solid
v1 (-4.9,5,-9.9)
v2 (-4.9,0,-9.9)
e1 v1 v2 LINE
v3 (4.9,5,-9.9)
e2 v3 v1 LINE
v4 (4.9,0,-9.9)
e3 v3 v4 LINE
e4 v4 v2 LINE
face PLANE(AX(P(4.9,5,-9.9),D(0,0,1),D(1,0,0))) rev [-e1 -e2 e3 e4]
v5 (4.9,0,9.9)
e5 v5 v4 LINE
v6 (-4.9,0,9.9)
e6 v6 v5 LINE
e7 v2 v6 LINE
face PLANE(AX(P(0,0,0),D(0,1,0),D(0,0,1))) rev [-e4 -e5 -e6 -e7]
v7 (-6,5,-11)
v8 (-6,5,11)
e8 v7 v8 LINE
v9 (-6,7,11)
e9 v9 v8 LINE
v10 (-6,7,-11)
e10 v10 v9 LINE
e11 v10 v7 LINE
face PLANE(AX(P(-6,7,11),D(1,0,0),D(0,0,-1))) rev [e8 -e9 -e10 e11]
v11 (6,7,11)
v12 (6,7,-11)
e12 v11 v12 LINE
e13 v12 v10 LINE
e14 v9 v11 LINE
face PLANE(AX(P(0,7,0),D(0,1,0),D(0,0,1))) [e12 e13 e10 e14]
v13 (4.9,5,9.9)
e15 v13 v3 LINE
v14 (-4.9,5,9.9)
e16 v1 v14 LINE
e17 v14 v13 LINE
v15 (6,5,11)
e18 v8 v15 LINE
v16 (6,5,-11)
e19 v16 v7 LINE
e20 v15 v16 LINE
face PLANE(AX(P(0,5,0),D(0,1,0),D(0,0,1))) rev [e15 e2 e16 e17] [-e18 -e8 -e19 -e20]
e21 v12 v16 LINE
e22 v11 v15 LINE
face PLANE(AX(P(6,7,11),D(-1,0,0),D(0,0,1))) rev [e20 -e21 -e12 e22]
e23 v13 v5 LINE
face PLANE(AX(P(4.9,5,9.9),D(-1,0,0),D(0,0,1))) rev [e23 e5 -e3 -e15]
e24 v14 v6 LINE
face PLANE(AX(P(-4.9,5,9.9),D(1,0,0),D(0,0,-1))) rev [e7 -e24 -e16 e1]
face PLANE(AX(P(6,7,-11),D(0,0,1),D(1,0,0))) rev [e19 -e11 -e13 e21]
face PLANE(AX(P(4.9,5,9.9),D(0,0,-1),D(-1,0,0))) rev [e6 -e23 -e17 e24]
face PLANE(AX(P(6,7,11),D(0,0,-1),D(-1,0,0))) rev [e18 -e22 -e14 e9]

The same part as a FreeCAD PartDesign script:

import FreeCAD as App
import Part
import Sketcher
from FreeCAD import Vector
Q = App.Units.Quantity

doc = App.newDocument("Part")
body = doc.addObject("PartDesign::Body", "Body")

sketch1 = body.newObject("Sketcher::SketchObject", "Sketch")
sketch1.AttachmentSupport = (doc.getObject("XZ_Plane"), [""])
sketch1.MapMode = "FlatFace"
sketch1.addGeometry(Part.LineSegment(Vector(-5, -10, 0), Vector(-5, 10, 0)), False)
sketch1.addGeometry(Part.LineSegment(Vector(-5, 10, 0), Vector(5, 10, 0)), False)
sketch1.addGeometry(Part.LineSegment(Vector(5, 10, 0), Vector(5, -10, 0)), False)
sketch1.addGeometry(Part.LineSegment(Vector(5, -10, 0), Vector(-5, -10, 0)), False)
sketch1.addConstraint(Sketcher.Constraint("Coincident", 0, 2, 1, 1))
sketch1.addConstraint(Sketcher.Constraint("Coincident", 1, 2, 2, 1))
sketch1.addConstraint(Sketcher.Constraint("Coincident", 2, 2, 3, 1))
sketch1.addConstraint(Sketcher.Constraint("Coincident", 3, 2, 0, 1))
sketch1.addConstraint(Sketcher.Constraint("Vertical", 0))
sketch1.addConstraint(Sketcher.Constraint("Horizontal", 1))
sketch1.addConstraint(Sketcher.Constraint("Vertical", 2))
sketch1.addConstraint(Sketcher.Constraint("Horizontal", 3))
sketch1.addConstraint(Sketcher.Constraint("Symmetric", 0, 2, 2, 2, -1, 1))
sketch1.addConstraint(Sketcher.Constraint("DistanceX", 1, 1, 1, 2, Q("9.8 mm")))
sketch1.addConstraint(Sketcher.Constraint("DistanceY", 0, 1, 0, 2, Q("19.8 mm")))
pad1 = body.newObject("PartDesign::Pad", "Pad")
pad1.Profile = sketch1
pad1.Length = 5
pad1.Reversed = True

sketch2 = body.newObject("Sketcher::SketchObject", "Sketch001")
sketch2.AttachmentSupport = (doc.getObject("XZ_Plane"), [""])
sketch2.MapMode = "FlatFace"
sketch2.AttachmentOffset = App.Placement(Vector(0, 0, -5), App.Rotation())
sketch2.addGeometry(Part.LineSegment(Vector(-6, -11, 0), Vector(-6, 11, 0)), False)
sketch2.addGeometry(Part.LineSegment(Vector(-6, 11, 0), Vector(6, 11, 0)), False)
sketch2.addGeometry(Part.LineSegment(Vector(6, 11, 0), Vector(6, -11, 0)), False)
sketch2.addGeometry(Part.LineSegment(Vector(6, -11, 0), Vector(-6, -11, 0)), False)
sketch2.addConstraint(Sketcher.Constraint("Coincident", 0, 2, 1, 1))
sketch2.addConstraint(Sketcher.Constraint("Coincident", 1, 2, 2, 1))
sketch2.addConstraint(Sketcher.Constraint("Coincident", 2, 2, 3, 1))
sketch2.addConstraint(Sketcher.Constraint("Coincident", 3, 2, 0, 1))
sketch2.addConstraint(Sketcher.Constraint("Vertical", 0))
sketch2.addConstraint(Sketcher.Constraint("Horizontal", 1))
sketch2.addConstraint(Sketcher.Constraint("Vertical", 2))
sketch2.addConstraint(Sketcher.Constraint("Horizontal", 3))
sketch2.addConstraint(Sketcher.Constraint("Symmetric", 0, 2, 2, 2, -1, 1))
sketch2.addConstraint(Sketcher.Constraint("DistanceX", 1, 1, 1, 2, Q("12 mm")))
sketch2.addConstraint(Sketcher.Constraint("DistanceY", 0, 1, 0, 2, Q("22 mm")))
pad2 = body.newObject("PartDesign::Pad", "Pad001")
pad2.Profile = sketch2
pad2.Length = 2
pad2.Reversed = True

doc.recompute()
